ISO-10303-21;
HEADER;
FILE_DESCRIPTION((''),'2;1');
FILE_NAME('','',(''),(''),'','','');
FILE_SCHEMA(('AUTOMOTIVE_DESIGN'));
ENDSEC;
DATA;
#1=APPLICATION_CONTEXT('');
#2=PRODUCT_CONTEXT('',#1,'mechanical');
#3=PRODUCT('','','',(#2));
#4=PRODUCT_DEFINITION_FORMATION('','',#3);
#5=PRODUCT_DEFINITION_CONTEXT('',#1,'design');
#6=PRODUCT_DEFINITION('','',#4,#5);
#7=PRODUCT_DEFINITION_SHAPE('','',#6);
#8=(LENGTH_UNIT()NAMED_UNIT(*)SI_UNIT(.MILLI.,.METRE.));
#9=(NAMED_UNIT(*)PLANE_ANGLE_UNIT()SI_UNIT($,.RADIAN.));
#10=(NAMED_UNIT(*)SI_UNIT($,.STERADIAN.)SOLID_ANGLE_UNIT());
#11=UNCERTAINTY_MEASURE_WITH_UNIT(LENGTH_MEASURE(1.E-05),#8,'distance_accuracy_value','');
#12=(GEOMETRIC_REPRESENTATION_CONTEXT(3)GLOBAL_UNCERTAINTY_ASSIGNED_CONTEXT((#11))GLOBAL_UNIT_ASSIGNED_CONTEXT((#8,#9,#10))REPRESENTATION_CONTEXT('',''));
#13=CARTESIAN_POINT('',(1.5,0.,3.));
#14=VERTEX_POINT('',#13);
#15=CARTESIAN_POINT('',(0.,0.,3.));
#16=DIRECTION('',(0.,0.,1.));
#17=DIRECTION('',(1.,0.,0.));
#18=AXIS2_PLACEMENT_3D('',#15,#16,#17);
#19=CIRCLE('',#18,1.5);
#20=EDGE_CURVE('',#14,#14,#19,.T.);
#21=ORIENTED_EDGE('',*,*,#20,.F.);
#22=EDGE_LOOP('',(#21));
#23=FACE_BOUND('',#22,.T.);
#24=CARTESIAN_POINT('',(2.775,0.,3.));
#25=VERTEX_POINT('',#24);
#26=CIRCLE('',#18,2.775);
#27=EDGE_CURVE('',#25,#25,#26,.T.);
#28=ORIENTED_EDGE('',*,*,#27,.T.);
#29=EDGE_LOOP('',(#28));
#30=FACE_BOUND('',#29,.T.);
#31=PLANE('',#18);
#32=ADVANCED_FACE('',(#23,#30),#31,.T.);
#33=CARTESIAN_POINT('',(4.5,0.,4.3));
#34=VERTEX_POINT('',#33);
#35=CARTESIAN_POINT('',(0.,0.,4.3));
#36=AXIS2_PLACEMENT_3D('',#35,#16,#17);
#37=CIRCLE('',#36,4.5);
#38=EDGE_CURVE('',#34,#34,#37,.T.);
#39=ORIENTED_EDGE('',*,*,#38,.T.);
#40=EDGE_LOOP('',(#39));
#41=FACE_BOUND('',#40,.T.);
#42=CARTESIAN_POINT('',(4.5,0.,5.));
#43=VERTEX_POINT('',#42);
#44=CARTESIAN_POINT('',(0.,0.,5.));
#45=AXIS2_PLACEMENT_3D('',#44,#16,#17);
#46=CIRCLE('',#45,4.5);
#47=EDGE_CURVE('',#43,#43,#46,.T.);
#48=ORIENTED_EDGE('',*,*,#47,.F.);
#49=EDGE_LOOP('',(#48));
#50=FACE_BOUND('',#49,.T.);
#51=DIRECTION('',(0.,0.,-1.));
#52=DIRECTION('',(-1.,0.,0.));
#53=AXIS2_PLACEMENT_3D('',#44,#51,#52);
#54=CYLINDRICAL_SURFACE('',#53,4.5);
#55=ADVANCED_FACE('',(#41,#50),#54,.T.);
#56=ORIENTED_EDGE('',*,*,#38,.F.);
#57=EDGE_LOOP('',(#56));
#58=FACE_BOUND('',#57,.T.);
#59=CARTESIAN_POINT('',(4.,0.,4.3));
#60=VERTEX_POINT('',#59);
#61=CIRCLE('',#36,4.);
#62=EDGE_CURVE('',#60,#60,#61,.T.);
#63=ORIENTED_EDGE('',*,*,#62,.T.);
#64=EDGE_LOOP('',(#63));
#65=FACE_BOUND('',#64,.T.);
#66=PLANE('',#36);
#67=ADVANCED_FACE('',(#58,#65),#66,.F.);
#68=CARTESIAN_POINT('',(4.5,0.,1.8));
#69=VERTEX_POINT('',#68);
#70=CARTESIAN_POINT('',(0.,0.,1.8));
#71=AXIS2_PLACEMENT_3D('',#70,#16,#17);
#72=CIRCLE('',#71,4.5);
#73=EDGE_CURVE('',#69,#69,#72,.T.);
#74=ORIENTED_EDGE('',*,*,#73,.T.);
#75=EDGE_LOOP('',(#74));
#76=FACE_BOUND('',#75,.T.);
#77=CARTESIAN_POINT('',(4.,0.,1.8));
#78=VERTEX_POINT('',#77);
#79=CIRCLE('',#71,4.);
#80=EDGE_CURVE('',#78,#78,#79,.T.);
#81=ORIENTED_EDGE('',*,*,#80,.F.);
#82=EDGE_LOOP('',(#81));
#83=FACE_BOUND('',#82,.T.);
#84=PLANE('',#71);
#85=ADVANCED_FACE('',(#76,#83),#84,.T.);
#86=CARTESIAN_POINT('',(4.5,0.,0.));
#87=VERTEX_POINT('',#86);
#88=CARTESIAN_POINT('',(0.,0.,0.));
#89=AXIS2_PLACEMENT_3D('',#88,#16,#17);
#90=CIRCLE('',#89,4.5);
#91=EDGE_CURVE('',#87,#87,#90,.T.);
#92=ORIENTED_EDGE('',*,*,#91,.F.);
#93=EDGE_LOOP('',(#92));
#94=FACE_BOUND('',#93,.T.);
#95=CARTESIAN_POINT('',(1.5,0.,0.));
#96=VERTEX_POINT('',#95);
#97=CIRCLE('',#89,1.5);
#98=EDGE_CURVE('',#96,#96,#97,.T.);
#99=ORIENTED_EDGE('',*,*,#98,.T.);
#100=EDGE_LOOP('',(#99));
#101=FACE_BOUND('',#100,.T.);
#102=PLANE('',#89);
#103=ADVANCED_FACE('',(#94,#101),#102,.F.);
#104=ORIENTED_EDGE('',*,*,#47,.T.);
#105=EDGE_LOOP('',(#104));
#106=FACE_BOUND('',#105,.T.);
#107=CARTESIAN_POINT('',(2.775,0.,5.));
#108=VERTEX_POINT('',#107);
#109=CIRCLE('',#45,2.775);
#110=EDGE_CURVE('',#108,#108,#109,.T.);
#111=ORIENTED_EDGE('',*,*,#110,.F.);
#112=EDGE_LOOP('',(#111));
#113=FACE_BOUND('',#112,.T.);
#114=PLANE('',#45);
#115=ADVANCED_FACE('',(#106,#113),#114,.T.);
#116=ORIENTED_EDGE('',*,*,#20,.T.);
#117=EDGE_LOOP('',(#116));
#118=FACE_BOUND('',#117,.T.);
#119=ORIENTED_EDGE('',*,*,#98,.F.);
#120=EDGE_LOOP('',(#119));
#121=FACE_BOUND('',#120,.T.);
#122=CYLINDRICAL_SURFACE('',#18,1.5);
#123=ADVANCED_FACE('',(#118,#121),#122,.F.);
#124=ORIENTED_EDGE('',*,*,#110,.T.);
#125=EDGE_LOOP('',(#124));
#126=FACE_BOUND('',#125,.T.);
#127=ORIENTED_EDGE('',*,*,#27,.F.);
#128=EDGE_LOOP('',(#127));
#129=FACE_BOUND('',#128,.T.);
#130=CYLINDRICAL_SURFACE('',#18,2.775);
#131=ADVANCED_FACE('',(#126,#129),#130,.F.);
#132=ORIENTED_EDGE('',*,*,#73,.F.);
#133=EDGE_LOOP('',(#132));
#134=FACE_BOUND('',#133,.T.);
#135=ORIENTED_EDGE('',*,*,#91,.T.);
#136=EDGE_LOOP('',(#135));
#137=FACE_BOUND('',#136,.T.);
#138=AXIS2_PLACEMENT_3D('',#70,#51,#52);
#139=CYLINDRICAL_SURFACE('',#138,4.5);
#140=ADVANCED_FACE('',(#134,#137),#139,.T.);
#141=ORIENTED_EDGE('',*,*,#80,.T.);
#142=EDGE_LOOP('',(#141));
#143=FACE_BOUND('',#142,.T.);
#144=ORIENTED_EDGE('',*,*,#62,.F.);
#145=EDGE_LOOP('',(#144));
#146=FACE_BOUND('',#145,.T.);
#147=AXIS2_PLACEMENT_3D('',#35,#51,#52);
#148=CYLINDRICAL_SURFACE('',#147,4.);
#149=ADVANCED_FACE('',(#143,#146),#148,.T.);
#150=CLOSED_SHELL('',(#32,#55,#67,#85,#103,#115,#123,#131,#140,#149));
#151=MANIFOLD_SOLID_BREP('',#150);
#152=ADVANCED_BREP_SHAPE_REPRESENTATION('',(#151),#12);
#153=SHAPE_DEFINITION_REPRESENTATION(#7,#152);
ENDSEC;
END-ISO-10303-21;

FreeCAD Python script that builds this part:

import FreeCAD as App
import Part
import Sketcher

doc = App.newDocument("Part")
body = doc.addObject("PartDesign::Body", "Body")

sketch1 = body.newObject("Sketcher::SketchObject", "Sketch")
sketch1.AttachmentSupport = (doc.getObject("XY_Plane"), [""])
sketch1.MapMode = "FlatFace"
sketch1.addGeometry(Part.Circle(App.Vector(0, 0, 0), App.Vector(0, 0, 1), 4.5), False)
sketch1.addConstraint([
    Sketcher.Constraint("Coincident", 0, 3, -1, 1),
    Sketcher.Constraint("Diameter", 0, 9.0),
])
pad1 = body.newObject("PartDesign::Pad", "Pad")
pad1.Profile = sketch1
pad1.Length = 1.8

sketch2 = body.newObject("Sketcher::SketchObject", "Sketch001")
sketch2.AttachmentSupport = (doc.getObject("XY_Plane"), [""])
sketch2.MapMode = "FlatFace"
sketch2.AttachmentOffset = App.Placement(App.Vector(0, 0, 1.8), App.Rotation())
sketch2.addGeometry(Part.Circle(App.Vector(0, 0, 0), App.Vector(0, 0, 1), 4), False)
sketch2.addConstraint([
    Sketcher.Constraint("Coincident", 0, 3, -1, 1),
    Sketcher.Constraint("Diameter", 0, 8.0),
])
pad2 = body.newObject("PartDesign::Pad", "Pad001")
pad2.Profile = sketch2
pad2.Length = 2.5

sketch3 = body.newObject("Sketcher::SketchObject", "Sketch002")
sketch3.AttachmentSupport = (doc.getObject("XY_Plane"), [""])
sketch3.MapMode = "FlatFace"
sketch3.AttachmentOffset = App.Placement(App.Vector(0, 0, 4.3), App.Rotation())
sketch3.addGeometry(Part.Circle(App.Vector(0, 0, 0), App.Vector(0, 0, 1), 4.5), False)
sketch3.addConstraint([
    Sketcher.Constraint("Coincident", 0, 3, -1, 1),
    Sketcher.Constraint("Diameter", 0, 9.0),
])
pad3 = body.newObject("PartDesign::Pad", "Pad002")
pad3.Profile = sketch3
pad3.Length = 0.7

sketch4 = body.newObject("Sketcher::SketchObject", "Sketch003")
sketch4.AttachmentSupport = (doc.getObject("XY_Plane"), [""])
sketch4.MapMode = "FlatFace"
sketch4.AttachmentOffset = App.Placement(App.Vector(0, 0, 5), App.Rotation())
sketch4.addGeometry(Part.Circle(App.Vector(0, 0, 0), App.Vector(0, 0, 1), 2.8), False)
sketch4.addConstraint([
    Sketcher.Constraint("Coincident", 0, 3, -1, 1),
    Sketcher.Constraint("Diameter", 0, 5.55),
])
pocket1 = body.newObject("PartDesign::Pocket", "Pocket")
pocket1.Profile = sketch4
pocket1.Length = 2

sketch5 = body.newObject("Sketcher::SketchObject", "Sketch004")
sketch5.AttachmentSupport = (doc.getObject("XY_Plane"), [""])
sketch5.MapMode = "FlatFace"
sketch5.AttachmentOffset = App.Placement(App.Vector(0, 0, 3), App.Rotation())
sketch5.addGeometry(Part.Circle(App.Vector(0, 0, 0), App.Vector(0, 0, 1), 1.5), False)
sketch5.addConstraint([
    Sketcher.Constraint("Coincident", 0, 3, -1, 1),
    Sketcher.Constraint("Diameter", 0, 3.0),
])
doc.recompute()
hole = body.newObject("PartDesign::Hole", "Hole")
hole.Profile = sketch5
hole.ThreadType = "None"
hole.Diameter = 3
hole.DepthType = "ThroughAll"

doc.recompute()
